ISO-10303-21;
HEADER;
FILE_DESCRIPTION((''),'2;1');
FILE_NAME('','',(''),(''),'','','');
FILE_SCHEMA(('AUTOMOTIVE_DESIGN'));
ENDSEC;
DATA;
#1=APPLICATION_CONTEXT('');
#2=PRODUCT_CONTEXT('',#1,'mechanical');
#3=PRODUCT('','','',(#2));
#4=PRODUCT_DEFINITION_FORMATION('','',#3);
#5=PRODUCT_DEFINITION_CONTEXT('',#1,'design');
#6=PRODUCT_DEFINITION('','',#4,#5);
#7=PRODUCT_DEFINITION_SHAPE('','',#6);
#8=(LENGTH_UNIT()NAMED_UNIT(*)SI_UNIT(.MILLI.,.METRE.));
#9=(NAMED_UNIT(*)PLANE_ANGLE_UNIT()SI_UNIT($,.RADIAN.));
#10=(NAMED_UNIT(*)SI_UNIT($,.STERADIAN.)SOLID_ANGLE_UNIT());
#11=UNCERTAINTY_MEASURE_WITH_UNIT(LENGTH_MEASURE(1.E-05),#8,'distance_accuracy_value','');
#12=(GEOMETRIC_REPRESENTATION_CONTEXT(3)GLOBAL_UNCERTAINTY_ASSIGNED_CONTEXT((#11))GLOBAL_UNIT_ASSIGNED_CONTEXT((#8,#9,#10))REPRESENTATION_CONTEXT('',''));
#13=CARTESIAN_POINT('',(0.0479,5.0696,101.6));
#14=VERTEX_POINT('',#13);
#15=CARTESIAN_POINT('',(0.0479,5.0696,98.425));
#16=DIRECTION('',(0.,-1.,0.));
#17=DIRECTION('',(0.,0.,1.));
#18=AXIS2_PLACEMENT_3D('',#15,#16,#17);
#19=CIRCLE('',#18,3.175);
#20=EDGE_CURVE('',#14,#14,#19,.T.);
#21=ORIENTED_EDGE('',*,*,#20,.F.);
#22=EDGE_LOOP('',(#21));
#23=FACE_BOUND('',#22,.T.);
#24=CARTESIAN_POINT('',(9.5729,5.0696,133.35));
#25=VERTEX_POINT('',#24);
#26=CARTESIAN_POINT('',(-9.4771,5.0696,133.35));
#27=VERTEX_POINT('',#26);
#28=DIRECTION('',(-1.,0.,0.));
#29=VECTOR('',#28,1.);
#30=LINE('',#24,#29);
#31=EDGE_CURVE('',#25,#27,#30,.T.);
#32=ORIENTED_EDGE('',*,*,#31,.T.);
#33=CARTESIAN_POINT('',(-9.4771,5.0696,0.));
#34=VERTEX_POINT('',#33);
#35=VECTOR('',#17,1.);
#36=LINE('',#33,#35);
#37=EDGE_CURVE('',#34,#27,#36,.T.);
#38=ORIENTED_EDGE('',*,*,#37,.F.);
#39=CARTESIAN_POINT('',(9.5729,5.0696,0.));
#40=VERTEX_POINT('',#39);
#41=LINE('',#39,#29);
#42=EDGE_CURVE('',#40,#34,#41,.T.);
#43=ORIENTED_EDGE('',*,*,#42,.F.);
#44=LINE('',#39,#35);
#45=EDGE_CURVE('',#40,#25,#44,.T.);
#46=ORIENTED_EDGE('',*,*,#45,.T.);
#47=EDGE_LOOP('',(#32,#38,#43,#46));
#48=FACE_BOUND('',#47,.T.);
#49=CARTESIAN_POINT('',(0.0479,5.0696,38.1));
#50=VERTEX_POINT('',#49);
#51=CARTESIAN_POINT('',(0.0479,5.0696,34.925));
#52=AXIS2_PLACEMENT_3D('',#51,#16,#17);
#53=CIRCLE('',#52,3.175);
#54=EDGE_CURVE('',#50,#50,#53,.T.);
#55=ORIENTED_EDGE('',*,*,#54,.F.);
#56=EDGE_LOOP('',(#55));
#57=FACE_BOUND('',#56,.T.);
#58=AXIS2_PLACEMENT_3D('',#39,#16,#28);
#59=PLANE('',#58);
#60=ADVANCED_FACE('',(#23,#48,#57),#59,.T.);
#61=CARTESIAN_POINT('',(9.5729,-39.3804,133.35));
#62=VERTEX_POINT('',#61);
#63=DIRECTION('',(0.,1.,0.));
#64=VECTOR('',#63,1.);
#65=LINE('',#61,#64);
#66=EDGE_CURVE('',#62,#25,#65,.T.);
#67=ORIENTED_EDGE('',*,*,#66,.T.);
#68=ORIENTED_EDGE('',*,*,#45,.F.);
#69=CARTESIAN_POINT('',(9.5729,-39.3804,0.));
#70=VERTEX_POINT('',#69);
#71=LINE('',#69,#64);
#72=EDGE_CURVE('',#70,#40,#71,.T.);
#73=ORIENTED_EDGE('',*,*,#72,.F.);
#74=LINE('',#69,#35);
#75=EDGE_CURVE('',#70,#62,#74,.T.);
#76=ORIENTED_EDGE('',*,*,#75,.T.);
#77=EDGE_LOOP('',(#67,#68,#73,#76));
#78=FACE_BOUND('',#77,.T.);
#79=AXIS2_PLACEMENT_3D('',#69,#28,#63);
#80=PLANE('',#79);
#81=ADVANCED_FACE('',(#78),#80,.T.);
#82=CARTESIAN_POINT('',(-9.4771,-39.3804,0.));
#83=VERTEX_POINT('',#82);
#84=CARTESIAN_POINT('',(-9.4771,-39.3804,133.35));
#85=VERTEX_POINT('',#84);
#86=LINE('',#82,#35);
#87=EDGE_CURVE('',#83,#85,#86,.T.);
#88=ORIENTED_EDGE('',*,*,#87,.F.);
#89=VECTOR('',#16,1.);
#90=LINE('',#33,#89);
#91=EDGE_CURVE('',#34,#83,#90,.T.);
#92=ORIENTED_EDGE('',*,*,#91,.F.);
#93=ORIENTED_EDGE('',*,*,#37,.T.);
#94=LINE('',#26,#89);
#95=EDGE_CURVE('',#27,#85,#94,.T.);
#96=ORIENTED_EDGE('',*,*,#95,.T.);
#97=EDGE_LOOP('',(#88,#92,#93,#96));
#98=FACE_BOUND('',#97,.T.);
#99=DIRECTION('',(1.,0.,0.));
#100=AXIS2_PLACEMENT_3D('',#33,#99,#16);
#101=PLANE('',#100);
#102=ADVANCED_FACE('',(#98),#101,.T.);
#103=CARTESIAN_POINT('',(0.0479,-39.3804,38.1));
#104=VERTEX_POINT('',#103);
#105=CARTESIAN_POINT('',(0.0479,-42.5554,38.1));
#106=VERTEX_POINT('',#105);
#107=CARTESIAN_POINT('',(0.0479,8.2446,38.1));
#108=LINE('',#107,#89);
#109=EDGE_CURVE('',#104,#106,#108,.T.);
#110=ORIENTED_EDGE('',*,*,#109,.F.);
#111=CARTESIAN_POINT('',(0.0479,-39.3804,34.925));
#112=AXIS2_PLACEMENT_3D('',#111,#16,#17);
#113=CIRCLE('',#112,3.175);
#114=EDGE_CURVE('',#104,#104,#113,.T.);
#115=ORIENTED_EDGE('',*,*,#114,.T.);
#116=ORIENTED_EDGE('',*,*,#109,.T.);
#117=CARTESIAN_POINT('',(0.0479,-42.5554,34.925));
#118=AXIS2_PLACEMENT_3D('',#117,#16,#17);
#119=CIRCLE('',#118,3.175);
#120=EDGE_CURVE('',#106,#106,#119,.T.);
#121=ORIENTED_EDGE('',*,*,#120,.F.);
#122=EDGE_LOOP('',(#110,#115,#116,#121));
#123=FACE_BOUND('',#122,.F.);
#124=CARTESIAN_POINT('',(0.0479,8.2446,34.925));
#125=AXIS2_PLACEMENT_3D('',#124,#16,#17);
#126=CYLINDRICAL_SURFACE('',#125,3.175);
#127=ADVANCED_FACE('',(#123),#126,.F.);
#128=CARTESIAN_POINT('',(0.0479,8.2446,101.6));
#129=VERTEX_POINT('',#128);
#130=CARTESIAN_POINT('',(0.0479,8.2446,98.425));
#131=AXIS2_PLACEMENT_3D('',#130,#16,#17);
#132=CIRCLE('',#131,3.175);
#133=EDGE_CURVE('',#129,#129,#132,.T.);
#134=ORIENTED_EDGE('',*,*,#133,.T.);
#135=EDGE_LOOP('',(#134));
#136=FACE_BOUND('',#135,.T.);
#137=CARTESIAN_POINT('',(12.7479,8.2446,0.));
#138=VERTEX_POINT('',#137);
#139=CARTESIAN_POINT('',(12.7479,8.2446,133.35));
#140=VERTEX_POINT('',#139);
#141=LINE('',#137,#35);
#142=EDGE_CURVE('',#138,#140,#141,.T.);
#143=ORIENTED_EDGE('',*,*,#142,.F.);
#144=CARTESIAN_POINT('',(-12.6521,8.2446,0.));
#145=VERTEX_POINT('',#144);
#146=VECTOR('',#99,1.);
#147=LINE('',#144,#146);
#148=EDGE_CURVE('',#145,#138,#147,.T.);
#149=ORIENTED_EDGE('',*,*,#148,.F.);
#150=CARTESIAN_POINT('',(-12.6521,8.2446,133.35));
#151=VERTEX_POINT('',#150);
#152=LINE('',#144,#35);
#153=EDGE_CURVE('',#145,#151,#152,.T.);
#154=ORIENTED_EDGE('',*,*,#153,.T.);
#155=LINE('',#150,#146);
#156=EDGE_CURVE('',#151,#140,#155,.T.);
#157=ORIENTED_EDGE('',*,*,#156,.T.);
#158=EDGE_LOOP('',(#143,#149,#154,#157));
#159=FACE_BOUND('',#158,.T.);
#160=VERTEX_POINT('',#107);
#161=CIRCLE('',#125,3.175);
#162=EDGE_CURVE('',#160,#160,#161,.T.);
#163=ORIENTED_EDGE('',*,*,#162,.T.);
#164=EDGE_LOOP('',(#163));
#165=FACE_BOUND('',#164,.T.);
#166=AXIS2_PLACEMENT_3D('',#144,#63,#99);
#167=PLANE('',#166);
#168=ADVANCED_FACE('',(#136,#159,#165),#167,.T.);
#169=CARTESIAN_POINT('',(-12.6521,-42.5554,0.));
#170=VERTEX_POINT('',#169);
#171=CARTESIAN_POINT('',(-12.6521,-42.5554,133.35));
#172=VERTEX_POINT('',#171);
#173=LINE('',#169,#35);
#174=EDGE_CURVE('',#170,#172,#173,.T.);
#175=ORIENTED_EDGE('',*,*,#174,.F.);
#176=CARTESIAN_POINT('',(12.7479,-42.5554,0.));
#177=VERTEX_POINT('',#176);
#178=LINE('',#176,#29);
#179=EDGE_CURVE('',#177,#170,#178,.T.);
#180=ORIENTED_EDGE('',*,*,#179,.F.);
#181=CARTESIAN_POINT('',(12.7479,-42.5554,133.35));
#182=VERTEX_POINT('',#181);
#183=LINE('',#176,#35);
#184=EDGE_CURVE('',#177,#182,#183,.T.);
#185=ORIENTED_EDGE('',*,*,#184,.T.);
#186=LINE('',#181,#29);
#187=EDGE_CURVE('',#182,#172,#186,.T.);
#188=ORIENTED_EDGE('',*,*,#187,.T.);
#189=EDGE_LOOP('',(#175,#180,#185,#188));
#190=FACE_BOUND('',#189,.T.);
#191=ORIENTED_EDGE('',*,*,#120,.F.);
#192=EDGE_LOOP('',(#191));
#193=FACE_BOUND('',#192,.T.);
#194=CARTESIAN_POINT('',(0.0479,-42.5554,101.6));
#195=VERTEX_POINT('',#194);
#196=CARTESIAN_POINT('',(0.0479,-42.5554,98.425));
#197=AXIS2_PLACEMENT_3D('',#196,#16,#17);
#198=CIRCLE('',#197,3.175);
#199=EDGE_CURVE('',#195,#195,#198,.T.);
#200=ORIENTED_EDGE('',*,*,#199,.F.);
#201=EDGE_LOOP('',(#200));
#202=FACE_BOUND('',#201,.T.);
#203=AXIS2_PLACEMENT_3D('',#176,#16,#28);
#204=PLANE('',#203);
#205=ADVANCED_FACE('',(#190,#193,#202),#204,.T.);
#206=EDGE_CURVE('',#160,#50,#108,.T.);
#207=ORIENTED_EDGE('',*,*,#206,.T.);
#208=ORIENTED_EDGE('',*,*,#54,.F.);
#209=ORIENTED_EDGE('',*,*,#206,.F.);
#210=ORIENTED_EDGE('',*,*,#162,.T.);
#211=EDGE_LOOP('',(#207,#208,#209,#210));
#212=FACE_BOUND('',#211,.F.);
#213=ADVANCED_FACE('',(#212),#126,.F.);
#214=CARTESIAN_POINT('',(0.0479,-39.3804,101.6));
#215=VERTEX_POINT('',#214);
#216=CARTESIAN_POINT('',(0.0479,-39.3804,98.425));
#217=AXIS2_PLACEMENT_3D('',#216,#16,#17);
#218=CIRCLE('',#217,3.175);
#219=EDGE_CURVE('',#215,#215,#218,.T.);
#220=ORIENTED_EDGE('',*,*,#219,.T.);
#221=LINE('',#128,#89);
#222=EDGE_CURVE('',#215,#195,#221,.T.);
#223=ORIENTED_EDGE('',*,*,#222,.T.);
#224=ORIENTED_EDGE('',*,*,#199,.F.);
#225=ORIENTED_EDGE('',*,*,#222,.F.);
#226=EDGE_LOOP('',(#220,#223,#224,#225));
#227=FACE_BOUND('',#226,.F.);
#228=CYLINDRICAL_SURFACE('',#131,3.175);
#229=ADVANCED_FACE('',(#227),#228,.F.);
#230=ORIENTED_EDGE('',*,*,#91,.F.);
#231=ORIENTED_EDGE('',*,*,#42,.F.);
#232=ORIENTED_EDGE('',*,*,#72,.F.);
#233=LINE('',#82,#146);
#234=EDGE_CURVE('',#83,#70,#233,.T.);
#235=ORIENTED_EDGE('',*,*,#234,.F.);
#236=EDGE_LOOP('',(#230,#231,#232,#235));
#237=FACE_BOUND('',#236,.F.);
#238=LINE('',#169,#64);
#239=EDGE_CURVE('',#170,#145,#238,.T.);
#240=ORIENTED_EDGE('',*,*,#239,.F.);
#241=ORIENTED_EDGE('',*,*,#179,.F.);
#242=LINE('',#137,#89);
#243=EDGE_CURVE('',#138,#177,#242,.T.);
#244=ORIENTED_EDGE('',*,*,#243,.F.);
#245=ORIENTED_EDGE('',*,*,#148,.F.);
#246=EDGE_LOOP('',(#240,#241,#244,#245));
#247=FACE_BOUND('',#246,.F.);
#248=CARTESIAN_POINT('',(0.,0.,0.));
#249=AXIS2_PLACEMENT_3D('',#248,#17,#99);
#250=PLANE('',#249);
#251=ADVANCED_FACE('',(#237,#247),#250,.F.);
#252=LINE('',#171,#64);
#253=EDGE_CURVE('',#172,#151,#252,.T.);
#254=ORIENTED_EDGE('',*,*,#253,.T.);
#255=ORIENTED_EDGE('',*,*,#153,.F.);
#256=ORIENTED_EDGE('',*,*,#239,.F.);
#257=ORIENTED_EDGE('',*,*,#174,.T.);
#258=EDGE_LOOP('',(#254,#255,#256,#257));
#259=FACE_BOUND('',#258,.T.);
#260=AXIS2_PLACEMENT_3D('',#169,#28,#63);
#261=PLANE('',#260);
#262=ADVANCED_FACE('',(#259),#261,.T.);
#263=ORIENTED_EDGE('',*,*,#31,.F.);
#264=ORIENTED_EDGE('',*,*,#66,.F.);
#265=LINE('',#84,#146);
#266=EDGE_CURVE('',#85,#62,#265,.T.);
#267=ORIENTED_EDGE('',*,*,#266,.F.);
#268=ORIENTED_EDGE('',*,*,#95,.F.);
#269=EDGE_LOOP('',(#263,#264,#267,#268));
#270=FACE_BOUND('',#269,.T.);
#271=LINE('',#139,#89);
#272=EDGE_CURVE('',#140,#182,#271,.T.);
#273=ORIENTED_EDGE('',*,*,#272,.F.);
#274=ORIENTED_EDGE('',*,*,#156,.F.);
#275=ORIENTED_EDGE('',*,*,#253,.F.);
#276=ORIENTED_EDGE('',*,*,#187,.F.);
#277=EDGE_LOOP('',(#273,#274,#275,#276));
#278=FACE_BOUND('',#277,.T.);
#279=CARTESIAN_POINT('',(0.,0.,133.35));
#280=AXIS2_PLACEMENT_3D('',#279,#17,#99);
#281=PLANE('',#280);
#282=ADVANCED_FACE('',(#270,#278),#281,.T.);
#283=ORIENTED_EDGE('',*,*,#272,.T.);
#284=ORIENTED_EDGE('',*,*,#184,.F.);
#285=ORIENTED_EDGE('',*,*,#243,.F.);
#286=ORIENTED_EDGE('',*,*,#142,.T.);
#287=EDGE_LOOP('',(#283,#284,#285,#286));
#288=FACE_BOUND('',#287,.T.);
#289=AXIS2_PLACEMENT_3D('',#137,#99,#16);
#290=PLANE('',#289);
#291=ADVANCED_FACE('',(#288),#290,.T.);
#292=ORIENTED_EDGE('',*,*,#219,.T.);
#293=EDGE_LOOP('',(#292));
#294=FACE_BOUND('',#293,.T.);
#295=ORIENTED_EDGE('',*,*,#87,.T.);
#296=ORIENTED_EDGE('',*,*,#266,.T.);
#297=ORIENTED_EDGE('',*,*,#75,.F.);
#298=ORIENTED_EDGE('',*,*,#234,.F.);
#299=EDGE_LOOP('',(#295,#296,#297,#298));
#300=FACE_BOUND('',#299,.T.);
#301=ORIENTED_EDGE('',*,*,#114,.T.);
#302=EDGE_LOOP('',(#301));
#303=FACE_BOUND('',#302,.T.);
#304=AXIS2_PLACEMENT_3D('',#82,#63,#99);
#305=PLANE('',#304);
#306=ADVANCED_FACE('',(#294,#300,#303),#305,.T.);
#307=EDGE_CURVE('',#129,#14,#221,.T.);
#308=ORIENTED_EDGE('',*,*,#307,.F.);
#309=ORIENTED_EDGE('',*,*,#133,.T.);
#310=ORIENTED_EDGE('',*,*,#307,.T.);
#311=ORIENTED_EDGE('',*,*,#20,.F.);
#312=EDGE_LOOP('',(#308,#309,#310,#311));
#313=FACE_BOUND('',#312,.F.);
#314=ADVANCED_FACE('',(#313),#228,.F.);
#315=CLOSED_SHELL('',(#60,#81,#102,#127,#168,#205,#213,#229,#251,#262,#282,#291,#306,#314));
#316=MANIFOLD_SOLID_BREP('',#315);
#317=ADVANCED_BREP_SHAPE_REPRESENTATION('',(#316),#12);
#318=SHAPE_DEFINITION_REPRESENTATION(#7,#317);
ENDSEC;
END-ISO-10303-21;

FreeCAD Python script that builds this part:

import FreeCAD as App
import Part
import Sketcher
from FreeCAD import Vector
Q = App.Units.Quantity

doc = App.newDocument("Part")
params = doc.addObject("Spreadsheet::Sheet", "Params")
for row, (alias, value) in enumerate([
    ("sketch1_width", "1 in"),
    ("sketch1_height", "2 in"),
    ("pad1_length", "5.25 in"),
    ("sketch2_diameter", "0.25 in"),
    ("hole_diameter", "0.25 in"),
], start=1):
    params.set(f"A{row}", alias)
    params.set(f"B{row}", "=" + value)
    params.setAlias(f"B{row}", alias)

body = doc.addObject("PartDesign::Body", "Body")

# Sketch on XY plane
sketch1 = doc.addObject("Sketcher::SketchObject", "Sketch")
body.addObject(sketch1)
sketch1.AttachmentSupport = (doc.XY_Plane, [""])
sketch1.MapMode = "FlatFace"
sketch1.addGeometry(Part.LineSegment(Vector(12.7479, 8.2446, 0), Vector(-12.6521, 8.2446, 0)), False)
sketch1.addGeometry(Part.LineSegment(Vector(-12.6521, 8.2446, 0), Vector(-12.6521, -42.5554, 0)), False)
sketch1.addGeometry(Part.LineSegment(Vector(-12.6521, -42.5554, 0), Vector(12.7479, -42.5554, 0)), False)
sketch1.addGeometry(Part.LineSegment(Vector(12.7479, -42.5554, 0), Vector(12.7479, 8.2446, 0)), False)
sketch1.addGeometry(Part.LineSegment(Vector(-9.4771, 5.0696, 0), Vector(9.5729, 5.0696, 0)), False)
sketch1.addGeometry(Part.LineSegment(Vector(9.5729, 5.0696, 0), Vector(9.5729, -39.3804, 0)), False)
sketch1.addGeometry(Part.LineSegment(Vector(9.5729, -39.3804, 0), Vector(-9.4771, -39.3804, 0)), False)
sketch1.addGeometry(Part.LineSegment(Vector(-9.4771, -39.3804, 0), Vector(-9.4771, 5.0696, 0)), False)
sketch1.addConstraint(Sketcher.Constraint("Coincident", 0, 2, 1, 1))
sketch1.addConstraint(Sketcher.Constraint("Coincident", 1, 2, 2, 1))
sketch1.addConstraint(Sketcher.Constraint("Coincident", 2, 2, 3, 1))
sketch1.addConstraint(Sketcher.Constraint("Coincident", 3, 2, 0, 1))
sketch1.addConstraint(Sketcher.Constraint("Coincident", 4, 2, 5, 1))
sketch1.addConstraint(Sketcher.Constraint("Coincident", 5, 2, 6, 1))
sketch1.addConstraint(Sketcher.Constraint("Coincident", 6, 2, 7, 1))
sketch1.addConstraint(Sketcher.Constraint("Coincident", 7, 2, 4, 1))
sketch1.addConstraint(Sketcher.Constraint("Horizontal", 0))
sketch1.addConstraint(Sketcher.Constraint("Vertical", 1))
sketch1.addConstraint(Sketcher.Constraint("Horizontal", 2))
sketch1.addConstraint(Sketcher.Constraint("Vertical", 3))
sketch1.addConstraint(Sketcher.Constraint("Horizontal", 4))
sketch1.addConstraint(Sketcher.Constraint("Vertical", 5))
sketch1.addConstraint(Sketcher.Constraint("Horizontal", 6))
sketch1.addConstraint(Sketcher.Constraint("Vertical", 7))
sketch1.addConstraint(Sketcher.Constraint("DistanceX", 0, 2, 0, 1, Q("1 in")))
sketch1.addConstraint(Sketcher.Constraint("DistanceY", 1, 2, 1, 1, Q("2 in")))
sketch1.addConstraint(Sketcher.Constraint("DistanceX", 4, 2, 3, 2, Q("0.125 in")))
sketch1.addConstraint(Sketcher.Constraint("DistanceY", 4, 2, 3, 2, Q("0.125 in")))
sketch1.addConstraint(Sketcher.Constraint("DistanceY", 2, 2, 5, 2, Q("0.125 in")))
sketch1.addConstraint(Sketcher.Constraint("DistanceX", 1, 2, 6, 2, Q("0.125 in")))
sketch1.addConstraint(Sketcher.Constraint("DistanceY", -1, 1, 0, 2, Q("0.3246 in")))
sketch1.addConstraint(Sketcher.Constraint("DistanceX", 0, 2, -1, 1, Q("0.4981102 in")))
sketch1.setExpression("Constraints[16]", "Params.sketch1_width")
sketch1.setExpression("Constraints[17]", "Params.sketch1_height")
pad1 = doc.addObject("PartDesign::Pad", "Pad")
body.addObject(pad1)
pad1.Profile = sketch1
pad1.setExpression("Length", "Params.pad1_length")

# Sketch on XZ plane
sketch2 = doc.addObject("Sketcher::SketchObject", "Sketch001")
body.addObject(sketch2)
sketch2.AttachmentSupport = (doc.XZ_Plane, [""])
sketch2.MapMode = "FlatFace"
sketch2.AttachmentOffset = App.Placement(Vector(0, 0, -0.3245906 * 25.4), App.Rotation())
sketch2.addGeometry(Part.Circle(Vector(0.0479, 34.925, 0), Vector(0, 0, 1), 3.175), False)
sketch2.addGeometry(Part.Circle(Vector(0.0479, 98.425, 0), Vector(0, 0, 1), 3.175), False)
sketch2.addConstraint(Sketcher.Constraint("Equal", 0, 1))
sketch2.addConstraint(Sketcher.Constraint("Vertical", 0, 3, 1, 3))
sketch2.addConstraint(Sketcher.Constraint("Diameter", 0, Q("0.25 in")))
sketch2.addConstraint(Sketcher.Constraint("DistanceY", 0, 3, 1, 3, Q("2.5 in")))
sketch2.addConstraint(Sketcher.Constraint("DistanceY", -1, 1, 0, 3, Q("1.375 in")))
sketch2.addConstraint(Sketcher.Constraint("DistanceX", -1, 1, 0, 3, Q("0.0018898 in")))
sketch2.setExpression("Constraints[2]", "Params.sketch2_diameter")
doc.recompute()
hole = doc.addObject("PartDesign::Hole", "Hole")
body.addObject(hole)
hole.Profile = sketch2
hole.ThreadType = "None"
hole.setExpression("Diameter", "Params.hole_diameter")
hole.DepthType = "ThroughAll"
hole.Reversed = True

doc.recompute()
